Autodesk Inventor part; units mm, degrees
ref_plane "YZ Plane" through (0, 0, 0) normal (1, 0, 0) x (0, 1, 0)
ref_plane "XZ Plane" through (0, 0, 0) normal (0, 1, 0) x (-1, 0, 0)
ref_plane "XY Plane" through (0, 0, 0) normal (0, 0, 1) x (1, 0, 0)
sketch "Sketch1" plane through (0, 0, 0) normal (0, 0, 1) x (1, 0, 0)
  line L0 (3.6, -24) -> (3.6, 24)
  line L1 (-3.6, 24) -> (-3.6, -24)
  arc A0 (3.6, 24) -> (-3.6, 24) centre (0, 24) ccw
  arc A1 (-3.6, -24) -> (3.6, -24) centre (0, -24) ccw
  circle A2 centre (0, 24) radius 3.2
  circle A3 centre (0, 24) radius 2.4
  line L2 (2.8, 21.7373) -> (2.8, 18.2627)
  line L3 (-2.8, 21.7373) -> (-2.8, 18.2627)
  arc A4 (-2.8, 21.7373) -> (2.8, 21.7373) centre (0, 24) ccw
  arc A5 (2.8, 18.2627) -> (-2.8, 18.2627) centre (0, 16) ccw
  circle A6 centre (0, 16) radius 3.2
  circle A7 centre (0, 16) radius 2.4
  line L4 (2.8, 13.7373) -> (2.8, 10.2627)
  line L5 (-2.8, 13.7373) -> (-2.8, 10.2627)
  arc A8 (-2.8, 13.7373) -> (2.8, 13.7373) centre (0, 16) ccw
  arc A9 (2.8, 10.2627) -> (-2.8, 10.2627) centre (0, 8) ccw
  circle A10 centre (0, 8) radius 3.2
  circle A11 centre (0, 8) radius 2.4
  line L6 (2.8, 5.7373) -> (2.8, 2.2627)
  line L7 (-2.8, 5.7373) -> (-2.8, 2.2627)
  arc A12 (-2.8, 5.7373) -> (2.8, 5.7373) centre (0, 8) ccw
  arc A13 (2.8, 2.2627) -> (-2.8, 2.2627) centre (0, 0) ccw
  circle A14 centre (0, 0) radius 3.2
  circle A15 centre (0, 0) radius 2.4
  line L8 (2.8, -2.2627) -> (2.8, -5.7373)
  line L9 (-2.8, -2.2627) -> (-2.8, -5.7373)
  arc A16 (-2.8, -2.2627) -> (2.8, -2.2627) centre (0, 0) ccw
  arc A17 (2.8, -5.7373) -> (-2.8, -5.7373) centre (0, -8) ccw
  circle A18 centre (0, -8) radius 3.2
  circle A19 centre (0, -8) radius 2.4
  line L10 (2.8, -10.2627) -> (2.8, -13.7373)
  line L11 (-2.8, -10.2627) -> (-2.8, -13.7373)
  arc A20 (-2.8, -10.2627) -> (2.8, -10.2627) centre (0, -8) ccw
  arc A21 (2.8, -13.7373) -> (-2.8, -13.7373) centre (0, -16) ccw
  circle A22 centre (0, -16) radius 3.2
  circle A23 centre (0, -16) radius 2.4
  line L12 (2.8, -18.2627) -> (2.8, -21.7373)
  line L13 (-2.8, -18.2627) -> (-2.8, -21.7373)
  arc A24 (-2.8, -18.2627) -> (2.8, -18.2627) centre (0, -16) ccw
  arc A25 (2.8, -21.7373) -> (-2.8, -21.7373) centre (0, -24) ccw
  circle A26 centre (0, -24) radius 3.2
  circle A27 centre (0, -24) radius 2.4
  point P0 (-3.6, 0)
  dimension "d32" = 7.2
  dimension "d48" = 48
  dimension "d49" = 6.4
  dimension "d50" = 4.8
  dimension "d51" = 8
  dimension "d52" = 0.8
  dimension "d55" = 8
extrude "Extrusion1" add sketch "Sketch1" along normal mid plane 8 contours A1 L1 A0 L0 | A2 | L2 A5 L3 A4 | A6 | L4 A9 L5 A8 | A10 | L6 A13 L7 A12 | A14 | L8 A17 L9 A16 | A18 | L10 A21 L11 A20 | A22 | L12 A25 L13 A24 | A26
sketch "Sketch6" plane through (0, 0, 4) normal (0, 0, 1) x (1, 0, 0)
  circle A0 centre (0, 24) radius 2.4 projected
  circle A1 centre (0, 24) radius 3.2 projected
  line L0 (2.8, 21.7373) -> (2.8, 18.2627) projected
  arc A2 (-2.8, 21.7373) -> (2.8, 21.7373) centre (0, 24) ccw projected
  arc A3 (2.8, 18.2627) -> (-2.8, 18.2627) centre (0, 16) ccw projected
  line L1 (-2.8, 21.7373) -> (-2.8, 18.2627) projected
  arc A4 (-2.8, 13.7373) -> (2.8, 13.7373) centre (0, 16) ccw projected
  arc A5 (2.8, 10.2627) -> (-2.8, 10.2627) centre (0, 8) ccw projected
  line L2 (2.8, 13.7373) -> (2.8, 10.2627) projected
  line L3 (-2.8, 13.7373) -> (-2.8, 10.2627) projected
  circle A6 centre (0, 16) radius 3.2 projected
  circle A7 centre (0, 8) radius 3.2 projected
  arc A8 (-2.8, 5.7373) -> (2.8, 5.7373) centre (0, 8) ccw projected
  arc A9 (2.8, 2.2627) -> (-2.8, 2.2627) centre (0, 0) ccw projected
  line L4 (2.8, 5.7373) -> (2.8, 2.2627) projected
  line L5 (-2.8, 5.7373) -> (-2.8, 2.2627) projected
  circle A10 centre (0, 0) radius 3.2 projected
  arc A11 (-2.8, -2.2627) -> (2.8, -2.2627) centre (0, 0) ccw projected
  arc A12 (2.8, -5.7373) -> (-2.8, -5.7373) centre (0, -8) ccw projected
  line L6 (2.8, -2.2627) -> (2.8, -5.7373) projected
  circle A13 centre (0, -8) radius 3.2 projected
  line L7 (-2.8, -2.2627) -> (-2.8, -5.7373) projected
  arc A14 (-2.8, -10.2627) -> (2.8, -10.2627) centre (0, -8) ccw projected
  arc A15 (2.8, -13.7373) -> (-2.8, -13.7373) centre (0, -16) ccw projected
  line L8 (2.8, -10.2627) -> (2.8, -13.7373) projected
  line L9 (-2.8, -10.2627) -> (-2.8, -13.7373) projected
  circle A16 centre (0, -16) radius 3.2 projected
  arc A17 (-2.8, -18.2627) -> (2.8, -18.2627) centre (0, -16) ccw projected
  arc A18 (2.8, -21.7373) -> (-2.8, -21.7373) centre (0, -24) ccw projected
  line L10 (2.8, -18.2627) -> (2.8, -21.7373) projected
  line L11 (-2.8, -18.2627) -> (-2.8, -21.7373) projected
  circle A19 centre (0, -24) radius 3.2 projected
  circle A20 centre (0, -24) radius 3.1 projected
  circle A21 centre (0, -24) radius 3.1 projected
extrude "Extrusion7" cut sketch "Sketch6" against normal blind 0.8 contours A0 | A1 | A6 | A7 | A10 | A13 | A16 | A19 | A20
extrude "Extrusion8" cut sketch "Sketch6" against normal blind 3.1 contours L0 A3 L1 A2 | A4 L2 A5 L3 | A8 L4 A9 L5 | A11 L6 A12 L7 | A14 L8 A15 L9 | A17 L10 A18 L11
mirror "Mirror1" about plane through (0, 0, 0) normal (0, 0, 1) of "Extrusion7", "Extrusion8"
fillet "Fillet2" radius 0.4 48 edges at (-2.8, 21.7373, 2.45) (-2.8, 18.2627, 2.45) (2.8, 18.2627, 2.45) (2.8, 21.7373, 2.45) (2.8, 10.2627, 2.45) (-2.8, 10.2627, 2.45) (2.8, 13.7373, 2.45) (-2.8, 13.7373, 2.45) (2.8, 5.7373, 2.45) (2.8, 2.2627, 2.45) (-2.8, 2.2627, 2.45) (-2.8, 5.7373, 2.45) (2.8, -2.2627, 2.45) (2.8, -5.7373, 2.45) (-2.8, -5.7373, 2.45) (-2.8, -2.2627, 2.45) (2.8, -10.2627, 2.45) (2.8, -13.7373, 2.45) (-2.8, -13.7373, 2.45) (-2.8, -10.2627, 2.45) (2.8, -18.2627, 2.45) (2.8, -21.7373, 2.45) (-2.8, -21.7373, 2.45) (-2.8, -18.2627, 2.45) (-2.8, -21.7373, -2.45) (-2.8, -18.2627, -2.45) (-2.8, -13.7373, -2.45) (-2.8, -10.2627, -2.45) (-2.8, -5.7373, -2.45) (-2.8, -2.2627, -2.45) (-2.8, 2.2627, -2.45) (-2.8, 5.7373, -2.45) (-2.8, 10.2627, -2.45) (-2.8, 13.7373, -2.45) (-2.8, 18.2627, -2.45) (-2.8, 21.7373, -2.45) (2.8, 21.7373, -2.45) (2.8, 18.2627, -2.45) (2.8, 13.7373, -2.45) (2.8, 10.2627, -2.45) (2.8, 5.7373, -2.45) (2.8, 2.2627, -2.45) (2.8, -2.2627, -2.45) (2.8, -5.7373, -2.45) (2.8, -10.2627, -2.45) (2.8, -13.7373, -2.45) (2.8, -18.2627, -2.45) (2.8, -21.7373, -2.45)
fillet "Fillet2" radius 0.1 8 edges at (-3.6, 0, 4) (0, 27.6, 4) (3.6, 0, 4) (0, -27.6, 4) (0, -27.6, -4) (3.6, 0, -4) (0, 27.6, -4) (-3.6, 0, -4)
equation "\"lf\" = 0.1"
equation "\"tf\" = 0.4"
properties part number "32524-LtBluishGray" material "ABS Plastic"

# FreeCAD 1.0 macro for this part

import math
import FreeCAD as App
import Part
import Sketcher

V = App.Vector
Q = App.Units.Quantity


def edges_at(feature, points):
    """Names of the edges that pass closest to the given points."""
    edges = feature.Shape.Edges
    near = lambda p: min(range(len(edges)), key=lambda i: edges[i].distToShape(Part.Vertex(*p))[0])
    return sorted({f"Edge{near(p) + 1}" for p in points})

doc = App.newDocument("Part")
params = doc.addObject("Spreadsheet::Sheet", "Params")
for row, (alias, value) in enumerate([
    ("sketch1_diameter", "4.8 mm"),
    ("sketch1_radius", "3.6 mm"),
    ("sketch1_height", "48 mm"),
    ("pad1_length", "8 mm"),
    ("sketch2_diameter", "6.4 mm"),
    ("pocket1_length", "0.8 mm"),
    ("sketch3_radius", "3.6 mm"),
    ("pocket2_length", "3.1 mm"),
    ("fillet_radius", "0.4 mm"),
    ("fillet2_radius", "0.1 mm"),
], start=1):
    params.set(f"A{row}", alias)
    params.set(f"B{row}", "=" + value)
    params.setAlias(f"B{row}", alias)

body = doc.addObject("PartDesign::Body", "Body")

# Sketch on XY plane
sketch1 = body.newObject("Sketcher::SketchObject", "Sketch")
sketch1.AttachmentSupport = (doc.getObject("XY_Plane"), [""])
sketch1.MapMode = "FlatFace"
sketch1.addGeometry(Part.ArcOfCircle(Part.Circle(V(0, -24, 0), V(0, 0, 1), 3.6), math.radians(180), math.radians(360)), False)
sketch1.addGeometry(Part.LineSegment(V(3.6, -24, 0), V(3.6, 24, 0)), False)
sketch1.addGeometry(Part.ArcOfCircle(Part.Circle(V(0, 24, 0), V(0, 0, 1), 3.6), math.radians(0), math.radians(180)), False)
sketch1.addGeometry(Part.LineSegment(V(-3.6, 24, 0), V(-3.6, -24, 0)), False)
sketch1.addGeometry(Part.Circle(V(0, -24, 0), V(0, 0, 1), 2.4), False)
sketch1.addGeometry(Part.Circle(V(0, -16, 0), V(0, 0, 1), 2.4), False)
sketch1.addGeometry(Part.Circle(V(0, -8, 0), V(0, 0, 1), 2.4), False)
sketch1.addGeometry(Part.Circle(V(0, 0, 0), V(0, 0, 1), 2.4), False)
sketch1.addGeometry(Part.Circle(V(0, 8, 0), V(0, 0, 1), 2.4), False)
sketch1.addGeometry(Part.Circle(V(0, 16, 0), V(0, 0, 1), 2.4), False)
sketch1.addGeometry(Part.Circle(V(0, 24, 0), V(0, 0, 1), 2.4), False)
sketch1.addConstraint(Sketcher.Constraint("Tangent", 0, 2, 1, 1))
sketch1.addConstraint(Sketcher.Constraint("Tangent", 1, 2, 2, 1))
sketch1.addConstraint(Sketcher.Constraint("Tangent", 2, 2, 3, 1))
sketch1.addConstraint(Sketcher.Constraint("Tangent", 3, 2, 0, 1))
sketch1.addConstraint(Sketcher.Constraint("Vertical", 1))
sketch1.addConstraint(Sketcher.Constraint("Vertical", 3))
sketch1.addConstraint(Sketcher.Constraint("Coincident", 7, 3, -1, 1))
sketch1.addConstraint(Sketcher.Constraint("Coincident", 4, 3, 0, 3))
sketch1.addConstraint(Sketcher.Constraint("Coincident", 10, 3, 2, 3))
sketch1.addConstraint(Sketcher.Constraint("Equal", 4, 5))
sketch1.addConstraint(Sketcher.Constraint("Equal", 5, 6))
sketch1.addConstraint(Sketcher.Constraint("Equal", 6, 7))
sketch1.addConstraint(Sketcher.Constraint("Equal", 7, 8))
sketch1.addConstraint(Sketcher.Constraint("Equal", 8, 9))
sketch1.addConstraint(Sketcher.Constraint("Equal", 9, 10))
sketch1.addConstraint(Sketcher.Constraint("Symmetric", 0, 3, 2, 3, -1, 1))
sketch1.addConstraint(Sketcher.Constraint("Symmetric", 6, 3, 8, 3, -1, 1))
sketch1.addConstraint(Sketcher.Constraint("Symmetric", 5, 3, 9, 3, -1, 1))
sketch1.addConstraint(Sketcher.Constraint("PointOnObject", 5, 3, -2))
sketch1.addConstraint(Sketcher.Constraint("PointOnObject", 6, 3, -2))
sketch1.addConstraint(Sketcher.Constraint("Diameter", 4, Q("4.8 mm")))
sketch1.addConstraint(Sketcher.Constraint("Radius", 0, Q("3.6 mm")))
sketch1.addConstraint(Sketcher.Constraint("DistanceY", 1, 1, 1, 2, Q("48 mm")))
sketch1.addConstraint(Sketcher.Constraint("DistanceY", 6, 3, -1, 1, Q("8 mm")))
sketch1.addConstraint(Sketcher.Constraint("DistanceY", 0, 3, 5, 3, Q("8 mm")))
sketch1.setExpression("Constraints[20]", "Params.sketch1_diameter")
sketch1.setExpression("Constraints[21]", "Params.sketch1_radius")
sketch1.setExpression("Constraints[22]", "Params.sketch1_height")
pad1 = body.newObject("PartDesign::Pad", "Pad")
pad1.Profile = sketch1
pad1.setExpression("Length", "Params.pad1_length")
pad1.Midplane = True

# Sketch on XY plane
sketch2 = body.newObject("Sketcher::SketchObject", "Sketch001")
sketch2.AttachmentSupport = (doc.getObject("XY_Plane"), [""])
sketch2.MapMode = "FlatFace"
sketch2.AttachmentOffset = App.Placement(V(0, 0, 4), App.Rotation())
sketch2.addGeometry(Part.Circle(V(0, 24, 0), V(0, 0, 1), 3.2), False)
sketch2.addGeometry(Part.Circle(V(0, 16, 0), V(0, 0, 1), 3.2), False)
sketch2.addGeometry(Part.Circle(V(0, 8, 0), V(0, 0, 1), 3.2), False)
sketch2.addGeometry(Part.Circle(V(0, 0, 0), V(0, 0, 1), 3.2), False)
sketch2.addGeometry(Part.Circle(V(0, -8, 0), V(0, 0, 1), 3.2), False)
sketch2.addGeometry(Part.Circle(V(0, -16, 0), V(0, 0, 1), 3.2), False)
sketch2.addGeometry(Part.Circle(V(0, -24, 0), V(0, 0, 1), 3.2), False)
sketch2.addConstraint(Sketcher.Constraint("Coincident", 3, 3, -1, 1))
sketch2.addConstraint(Sketcher.Constraint("Equal", 0, 1))
sketch2.addConstraint(Sketcher.Constraint("Equal", 1, 2))
sketch2.addConstraint(Sketcher.Constraint("Equal", 2, 3))
sketch2.addConstraint(Sketcher.Constraint("Equal", 3, 4))
sketch2.addConstraint(Sketcher.Constraint("Equal", 4, 5))
sketch2.addConstraint(Sketcher.Constraint("Equal", 5, 6))
sketch2.addConstraint(Sketcher.Constraint("Symmetric", 2, 3, 4, 3, -1, 1))
sketch2.addConstraint(Sketcher.Constraint("Symmetric", 1, 3, 5, 3, -1, 1))
sketch2.addConstraint(Sketcher.Constraint("Symmetric", 0, 3, 6, 3, -1, 1))
sketch2.addConstraint(Sketcher.Constraint("PointOnObject", 0, 3, -2))
sketch2.addConstraint(Sketcher.Constraint("PointOnObject", 1, 3, -2))
sketch2.addConstraint(Sketcher.Constraint("PointOnObject", 2, 3, -2))
sketch2.addConstraint(Sketcher.Constraint("Diameter", 0, Q("6.4 mm")))
sketch2.addConstraint(Sketcher.Constraint("DistanceY", -1, 1, 0, 3, Q("24 mm")))
sketch2.addConstraint(Sketcher.Constraint("DistanceY", -1, 1, 1, 3, Q("16 mm")))
sketch2.addConstraint(Sketcher.Constraint("DistanceY", -1, 1, 2, 3, Q("8 mm")))
sketch2.setExpression("Constraints[13]", "Params.sketch2_diameter")
pocket1 = body.newObject("PartDesign::Pocket", "Pocket")
pocket1.Profile = sketch2
pocket1.setExpression("Length", "Params.pocket1_length")

# Sketch on XY plane
sketch3 = body.newObject("Sketcher::SketchObject", "Sketch002")
sketch3.AttachmentSupport = (doc.getObject("XY_Plane"), [""])
sketch3.MapMode = "FlatFace"
sketch3.AttachmentOffset = App.Placement(V(0, 0, 4), App.Rotation())
sketch3.addGeometry(Part.LineSegment(V(2.8, 18.3, 0), V(2.8, 21.7, 0)), False)
sketch3.addGeometry(Part.ArcOfCircle(Part.Circle(V(0, 24, 0), V(0, 0, 1), 3.6), math.radians(-141), math.radians(-39)), False)
sketch3.addGeometry(Part.LineSegment(V(-2.8, 21.7, 0), V(-2.8, 18.3, 0)), False)
sketch3.addGeometry(Part.ArcOfCircle(Part.Circle(V(0, 16, 0), V(0, 0, 1), 3.6), math.radians(39), math.radians(141)), False)
sketch3.addGeometry(Part.ArcOfCircle(Part.Circle(V(0, 16, 0), V(0, 0, 1), 3.6), math.radians(-141), math.radians(-39)), False)
sketch3.addGeometry(Part.LineSegment(V(-2.8, 13.7, 0), V(-2.8, 10.3, 0)), False)
sketch3.addGeometry(Part.ArcOfCircle(Part.Circle(V(0, 8, 0), V(0, 0, 1), 3.6), math.radians(39), math.radians(141)), False)
sketch3.addGeometry(Part.LineSegment(V(2.8, 10.3, 0), V(2.8, 13.7, 0)), False)
sketch3.addGeometry(Part.ArcOfCircle(Part.Circle(V(0, 8, 0), V(0, 0, 1), 3.6), math.radians(-141), math.radians(-39)), False)
sketch3.addGeometry(Part.LineSegment(V(-2.8, 5.7, 0), V(-2.8, 2.3, 0)), False)
sketch3.addGeometry(Part.ArcOfCircle(Part.Circle(V(0, 0, 0), V(0, 0, 1), 3.6), math.radians(39), math.radians(141)), False)
sketch3.addGeometry(Part.LineSegment(V(2.8, 2.3, 0), V(2.8, 5.7, 0)), False)
sketch3.addGeometry(Part.ArcOfCircle(Part.Circle(V(0, 0, 0), V(0, 0, 1), 3.6), math.radians(-141), math.radians(-39)), False)
sketch3.addGeometry(Part.LineSegment(V(-2.8, -2.3, 0), V(-2.8, -5.7, 0)), False)
sketch3.addGeometry(Part.ArcOfCircle(Part.Circle(V(0, -8, 0), V(0, 0, 1), 3.6), math.radians(39), math.radians(141)), False)
sketch3.addGeometry(Part.LineSegment(V(2.8, -5.7, 0), V(2.8, -2.3, 0)), False)
sketch3.addGeometry(Part.ArcOfCircle(Part.Circle(V(0, -8, 0), V(0, 0, 1), 3.6), math.radians(-141), math.radians(-39)), False)
sketch3.addGeometry(Part.LineSegment(V(-2.8, -10.3, 0), V(-2.8, -13.7, 0)), False)
sketch3.addGeometry(Part.ArcOfCircle(Part.Circle(V(0, -16, 0), V(0, 0, 1), 3.6), math.radians(39), math.radians(141)), False)
sketch3.addGeometry(Part.LineSegment(V(2.8, -13.7, 0), V(2.8, -10.3, 0)), False)
sketch3.addGeometry(Part.ArcOfCircle(Part.Circle(V(0, -16, 0), V(0, 0, 1), 3.6), math.radians(-141), math.radians(-39)), False)
sketch3.addGeometry(Part.LineSegment(V(-2.8, -18.3, 0), V(-2.8, -21.7, 0)), False)
sketch3.addGeometry(Part.ArcOfCircle(Part.Circle(V(0, -24, 0), V(0, 0, 1), 3.6), math.radians(39), math.radians(141)), False)
sketch3.addGeometry(Part.LineSegment(V(2.8, -21.7, 0), V(2.8, -18.3, 0)), False)
sketch3.addConstraint(Sketcher.Constraint("Coincident", 0, 2, 1, 2))
sketch3.addConstraint(Sketcher.Constraint("Coincident", 1, 1, 2, 1))
sketch3.addConstraint(Sketcher.Constraint("Coincident", 2, 2, 3, 2))
sketch3.addConstraint(Sketcher.Constraint("Coincident", 3, 1, 0, 1))
sketch3.addConstraint(Sketcher.Constraint("Coincident", 4, 1, 5, 1))
sketch3.addConstraint(Sketcher.Constraint("Coincident", 5, 2, 6, 2))
sketch3.addConstraint(Sketcher.Constraint("Coincident", 6, 1, 7, 1))
sketch3.addConstraint(Sketcher.Constraint("Coincident", 7, 2, 4, 2))
sketch3.addConstraint(Sketcher.Constraint("Coincident", 8, 1, 9, 1))
sketch3.addConstraint(Sketcher.Constraint("Coincident", 9, 2, 10, 2))
sketch3.addConstraint(Sketcher.Constraint("Coincident", 10, 1, 11, 1))
sketch3.addConstraint(Sketcher.Constraint("Coincident", 11, 2, 8, 2))
sketch3.addConstraint(Sketcher.Constraint("Coincident", 12, 1, 13, 1))
sketch3.addConstraint(Sketcher.Constraint("Coincident", 13, 2, 14, 2))
sketch3.addConstraint(Sketcher.Constraint("Coincident", 14, 1, 15, 1))
sketch3.addConstraint(Sketcher.Constraint("Coincident", 15, 2, 12, 2))
sketch3.addConstraint(Sketcher.Constraint("Coincident", 16, 1, 17, 1))
sketch3.addConstraint(Sketcher.Constraint("Coincident", 17, 2, 18, 2))
sketch3.addConstraint(Sketcher.Constraint("Coincident", 18, 1, 19, 1))
sketch3.addConstraint(Sketcher.Constraint("Coincident", 19, 2, 16, 2))
sketch3.addConstraint(Sketcher.Constraint("Coincident", 20, 1, 21, 1))
sketch3.addConstraint(Sketcher.Constraint("Coincident", 21, 2, 22, 2))
sketch3.addConstraint(Sketcher.Constraint("Coincident", 22, 1, 23, 1))
sketch3.addConstraint(Sketcher.Constraint("Coincident", 23, 2, 20, 2))
sketch3.addConstraint(Sketcher.Constraint("Vertical", 0))
sketch3.addConstraint(Sketcher.Constraint("Vertical", 2))
sketch3.addConstraint(Sketcher.Constraint("Vertical", 5))
sketch3.addConstraint(Sketcher.Constraint("Vertical", 7))
sketch3.addConstraint(Sketcher.Constraint("Vertical", 9))
sketch3.addConstraint(Sketcher.Constraint("Vertical", 11))
sketch3.addConstraint(Sketcher.Constraint("Vertical", 13))
sketch3.addConstraint(Sketcher.Constraint("Vertical", 15))
sketch3.addConstraint(Sketcher.Constraint("Vertical", 17))
sketch3.addConstraint(Sketcher.Constraint("Vertical", 19))
sketch3.addConstraint(Sketcher.Constraint("Vertical", 21))
sketch3.addConstraint(Sketcher.Constraint("Vertical", 23))
sketch3.addConstraint(Sketcher.Constraint("Coincident", 10, 3, -1, 1))
sketch3.addConstraint(Sketcher.Constraint("Coincident", 12, 3, -1, 1))
sketch3.addConstraint(Sketcher.Constraint("Coincident", 4, 3, 3, 3))
sketch3.addConstraint(Sketcher.Constraint("Coincident", 8, 3, 6, 3))
sketch3.addConstraint(Sketcher.Constraint("Coincident", 16, 3, 14, 3))
sketch3.addConstraint(Sketcher.Constraint("Coincident", 20, 3, 18, 3))
sketch3.addConstraint(Sketcher.Constraint("Equal", 1, 3))
sketch3.addConstraint(Sketcher.Constraint("Equal", 3, 4))
sketch3.addConstraint(Sketcher.Constraint("Equal", 4, 6))
sketch3.addConstraint(Sketcher.Constraint("Equal", 6, 8))
sketch3.addConstraint(Sketcher.Constraint("Equal", 8, 10))
sketch3.addConstraint(Sketcher.Constraint("Equal", 10, 12))
sketch3.addConstraint(Sketcher.Constraint("Equal", 12, 14))
sketch3.addConstraint(Sketcher.Constraint("Equal", 14, 16))
sketch3.addConstraint(Sketcher.Constraint("Equal", 16, 18))
sketch3.addConstraint(Sketcher.Constraint("Equal", 18, 20))
sketch3.addConstraint(Sketcher.Constraint("Equal", 20, 22))
sketch3.addConstraint(Sketcher.Constraint("Symmetric", 6, 3, 14, 3, -1, 1))
sketch3.addConstraint(Sketcher.Constraint("Symmetric", 3, 3, 18, 3, -1, 1))
sketch3.addConstraint(Sketcher.Constraint("Symmetric", 1, 3, 22, 3, -1, 1))
sketch3.addConstraint(Sketcher.Constraint("Symmetric", 0, 2, 1, 1, -2))
sketch3.addConstraint(Sketcher.Constraint("Symmetric", 5, 2, 6, 1, -2))
sketch3.addConstraint(Sketcher.Constraint("Symmetric", 17, 2, 18, 1, -2))
sketch3.addConstraint(Sketcher.Constraint("Horizontal", 9, 2, 10, 1))
sketch3.addConstraint(Sketcher.Constraint("Horizontal", 13, 2, 14, 1))
sketch3.addConstraint(Sketcher.Constraint("Horizontal", 21, 2, 22, 1))
sketch3.addConstraint(Sketcher.Constraint("Vertical", 2, 2, 4, 1))
sketch3.addConstraint(Sketcher.Constraint("Vertical", 5, 2, 8, 1))
sketch3.addConstraint(Sketcher.Constraint("Vertical", 9, 2, 12, 1))
sketch3.addConstraint(Sketcher.Constraint("Vertical", 13, 2, 16, 1))
sketch3.addConstraint(Sketcher.Constraint("Vertical", 17, 2, 20, 1))
sketch3.addConstraint(Sketcher.Constraint("Equal", 2, 5))
sketch3.addConstraint(Sketcher.Constraint("Equal", 7, 9))
sketch3.addConstraint(Sketcher.Constraint("Radius", 1, Q("3.6 mm")))
sketch3.addConstraint(Sketcher.Constraint("DistanceY", -1, 1, 1, 3, Q("24 mm")))
sketch3.addConstraint(Sketcher.Constraint("DistanceX", -1, 1, 0, 2, Q("2.8 mm")))
sketch3.setExpression("Constraints[69]", "Params.sketch3_radius")
pocket2 = body.newObject("PartDesign::Pocket", "Pocket001")
pocket2.Profile = sketch3
pocket2.setExpression("Length", "Params.pocket2_length")
doc.recompute()

mirrored = body.newObject("PartDesign::Mirrored", "Mirrored")
mirrored.Originals = [pocket1, pocket2]
mirrored.MirrorPlane = (doc.getObject("XY_Plane"), [""])
body.Tip = mirrored
doc.recompute()

fillet = body.newObject("PartDesign::Fillet", "Fillet")
fillet.Base = (mirrored, edges_at(mirrored, [
    (-2.8, 21.737, 2.45),
    (-2.8, 18.263, 2.45),
    (2.8, 18.263, 2.45),
    (2.8, 21.737, 2.45),
    (2.8, 10.263, 2.45),
    (-2.8, 10.263, 2.45),
    (2.8, 13.737, 2.45),
    (-2.8, 13.737, 2.45),
    (2.8, 5.737, 2.45),
    (2.8, 2.263, 2.45),
    (-2.8, 2.263, 2.45),
    (-2.8, 5.737, 2.45),
    (2.8, -2.263, 2.45),
    (2.8, -5.737, 2.45),
    (-2.8, -5.737, 2.45),
    (-2.8, -2.263, 2.45),
    (2.8, -10.263, 2.45),
    (2.8, -13.737, 2.45),
    (-2.8, -13.737, 2.45),
    (-2.8, -10.263, 2.45),
    (2.8, -18.263, 2.45),
    (2.8, -21.737, 2.45),
    (-2.8, -21.737, 2.45),
    (-2.8, -18.263, 2.45),
    (-2.8, -21.737, -2.45),
    (-2.8, -18.263, -2.45),
    (-2.8, -13.737, -2.45),
    (-2.8, -10.263, -2.45),
    (-2.8, -5.737, -2.45),
    (-2.8, -2.263, -2.45),
    (-2.8, 2.263, -2.45),
    (-2.8, 5.737, -2.45),
    (-2.8, 10.263, -2.45),
    (-2.8, 13.737, -2.45),
    (-2.8, 18.263, -2.45),
    (-2.8, 21.737, -2.45),
    (2.8, 21.737, -2.45),
    (2.8, 18.263, -2.45),
    (2.8, 13.737, -2.45),
    (2.8, 10.263, -2.45),
    (2.8, 5.737, -2.45),
    (2.8, 2.263, -2.45),
    (2.8, -2.263, -2.45),
    (2.8, -5.737, -2.45),
    (2.8, -10.263, -2.45),
    (2.8, -13.737, -2.45),
    (2.8, -18.263, -2.45),
    (2.8, -21.737, -2.45),
]))
fillet.setExpression("Radius", "Params.fillet_radius")
doc.recompute()

fillet2 = body.newObject("PartDesign::Fillet", "Fillet001")
fillet2.Base = (fillet, edges_at(fillet, [
    (-3.6, 0, 4),
    (0, 27.6, 4),
    (3.6, 0, 4),
    (0, -27.6, 4),
    (0, -27.6, -4),
    (3.6, 0, -4),
    (0, 27.6, -4),
    (-3.6, 0, -4),
]))
fillet2.setExpression("Radius", "Params.fillet2_radius")

doc.recompute()
